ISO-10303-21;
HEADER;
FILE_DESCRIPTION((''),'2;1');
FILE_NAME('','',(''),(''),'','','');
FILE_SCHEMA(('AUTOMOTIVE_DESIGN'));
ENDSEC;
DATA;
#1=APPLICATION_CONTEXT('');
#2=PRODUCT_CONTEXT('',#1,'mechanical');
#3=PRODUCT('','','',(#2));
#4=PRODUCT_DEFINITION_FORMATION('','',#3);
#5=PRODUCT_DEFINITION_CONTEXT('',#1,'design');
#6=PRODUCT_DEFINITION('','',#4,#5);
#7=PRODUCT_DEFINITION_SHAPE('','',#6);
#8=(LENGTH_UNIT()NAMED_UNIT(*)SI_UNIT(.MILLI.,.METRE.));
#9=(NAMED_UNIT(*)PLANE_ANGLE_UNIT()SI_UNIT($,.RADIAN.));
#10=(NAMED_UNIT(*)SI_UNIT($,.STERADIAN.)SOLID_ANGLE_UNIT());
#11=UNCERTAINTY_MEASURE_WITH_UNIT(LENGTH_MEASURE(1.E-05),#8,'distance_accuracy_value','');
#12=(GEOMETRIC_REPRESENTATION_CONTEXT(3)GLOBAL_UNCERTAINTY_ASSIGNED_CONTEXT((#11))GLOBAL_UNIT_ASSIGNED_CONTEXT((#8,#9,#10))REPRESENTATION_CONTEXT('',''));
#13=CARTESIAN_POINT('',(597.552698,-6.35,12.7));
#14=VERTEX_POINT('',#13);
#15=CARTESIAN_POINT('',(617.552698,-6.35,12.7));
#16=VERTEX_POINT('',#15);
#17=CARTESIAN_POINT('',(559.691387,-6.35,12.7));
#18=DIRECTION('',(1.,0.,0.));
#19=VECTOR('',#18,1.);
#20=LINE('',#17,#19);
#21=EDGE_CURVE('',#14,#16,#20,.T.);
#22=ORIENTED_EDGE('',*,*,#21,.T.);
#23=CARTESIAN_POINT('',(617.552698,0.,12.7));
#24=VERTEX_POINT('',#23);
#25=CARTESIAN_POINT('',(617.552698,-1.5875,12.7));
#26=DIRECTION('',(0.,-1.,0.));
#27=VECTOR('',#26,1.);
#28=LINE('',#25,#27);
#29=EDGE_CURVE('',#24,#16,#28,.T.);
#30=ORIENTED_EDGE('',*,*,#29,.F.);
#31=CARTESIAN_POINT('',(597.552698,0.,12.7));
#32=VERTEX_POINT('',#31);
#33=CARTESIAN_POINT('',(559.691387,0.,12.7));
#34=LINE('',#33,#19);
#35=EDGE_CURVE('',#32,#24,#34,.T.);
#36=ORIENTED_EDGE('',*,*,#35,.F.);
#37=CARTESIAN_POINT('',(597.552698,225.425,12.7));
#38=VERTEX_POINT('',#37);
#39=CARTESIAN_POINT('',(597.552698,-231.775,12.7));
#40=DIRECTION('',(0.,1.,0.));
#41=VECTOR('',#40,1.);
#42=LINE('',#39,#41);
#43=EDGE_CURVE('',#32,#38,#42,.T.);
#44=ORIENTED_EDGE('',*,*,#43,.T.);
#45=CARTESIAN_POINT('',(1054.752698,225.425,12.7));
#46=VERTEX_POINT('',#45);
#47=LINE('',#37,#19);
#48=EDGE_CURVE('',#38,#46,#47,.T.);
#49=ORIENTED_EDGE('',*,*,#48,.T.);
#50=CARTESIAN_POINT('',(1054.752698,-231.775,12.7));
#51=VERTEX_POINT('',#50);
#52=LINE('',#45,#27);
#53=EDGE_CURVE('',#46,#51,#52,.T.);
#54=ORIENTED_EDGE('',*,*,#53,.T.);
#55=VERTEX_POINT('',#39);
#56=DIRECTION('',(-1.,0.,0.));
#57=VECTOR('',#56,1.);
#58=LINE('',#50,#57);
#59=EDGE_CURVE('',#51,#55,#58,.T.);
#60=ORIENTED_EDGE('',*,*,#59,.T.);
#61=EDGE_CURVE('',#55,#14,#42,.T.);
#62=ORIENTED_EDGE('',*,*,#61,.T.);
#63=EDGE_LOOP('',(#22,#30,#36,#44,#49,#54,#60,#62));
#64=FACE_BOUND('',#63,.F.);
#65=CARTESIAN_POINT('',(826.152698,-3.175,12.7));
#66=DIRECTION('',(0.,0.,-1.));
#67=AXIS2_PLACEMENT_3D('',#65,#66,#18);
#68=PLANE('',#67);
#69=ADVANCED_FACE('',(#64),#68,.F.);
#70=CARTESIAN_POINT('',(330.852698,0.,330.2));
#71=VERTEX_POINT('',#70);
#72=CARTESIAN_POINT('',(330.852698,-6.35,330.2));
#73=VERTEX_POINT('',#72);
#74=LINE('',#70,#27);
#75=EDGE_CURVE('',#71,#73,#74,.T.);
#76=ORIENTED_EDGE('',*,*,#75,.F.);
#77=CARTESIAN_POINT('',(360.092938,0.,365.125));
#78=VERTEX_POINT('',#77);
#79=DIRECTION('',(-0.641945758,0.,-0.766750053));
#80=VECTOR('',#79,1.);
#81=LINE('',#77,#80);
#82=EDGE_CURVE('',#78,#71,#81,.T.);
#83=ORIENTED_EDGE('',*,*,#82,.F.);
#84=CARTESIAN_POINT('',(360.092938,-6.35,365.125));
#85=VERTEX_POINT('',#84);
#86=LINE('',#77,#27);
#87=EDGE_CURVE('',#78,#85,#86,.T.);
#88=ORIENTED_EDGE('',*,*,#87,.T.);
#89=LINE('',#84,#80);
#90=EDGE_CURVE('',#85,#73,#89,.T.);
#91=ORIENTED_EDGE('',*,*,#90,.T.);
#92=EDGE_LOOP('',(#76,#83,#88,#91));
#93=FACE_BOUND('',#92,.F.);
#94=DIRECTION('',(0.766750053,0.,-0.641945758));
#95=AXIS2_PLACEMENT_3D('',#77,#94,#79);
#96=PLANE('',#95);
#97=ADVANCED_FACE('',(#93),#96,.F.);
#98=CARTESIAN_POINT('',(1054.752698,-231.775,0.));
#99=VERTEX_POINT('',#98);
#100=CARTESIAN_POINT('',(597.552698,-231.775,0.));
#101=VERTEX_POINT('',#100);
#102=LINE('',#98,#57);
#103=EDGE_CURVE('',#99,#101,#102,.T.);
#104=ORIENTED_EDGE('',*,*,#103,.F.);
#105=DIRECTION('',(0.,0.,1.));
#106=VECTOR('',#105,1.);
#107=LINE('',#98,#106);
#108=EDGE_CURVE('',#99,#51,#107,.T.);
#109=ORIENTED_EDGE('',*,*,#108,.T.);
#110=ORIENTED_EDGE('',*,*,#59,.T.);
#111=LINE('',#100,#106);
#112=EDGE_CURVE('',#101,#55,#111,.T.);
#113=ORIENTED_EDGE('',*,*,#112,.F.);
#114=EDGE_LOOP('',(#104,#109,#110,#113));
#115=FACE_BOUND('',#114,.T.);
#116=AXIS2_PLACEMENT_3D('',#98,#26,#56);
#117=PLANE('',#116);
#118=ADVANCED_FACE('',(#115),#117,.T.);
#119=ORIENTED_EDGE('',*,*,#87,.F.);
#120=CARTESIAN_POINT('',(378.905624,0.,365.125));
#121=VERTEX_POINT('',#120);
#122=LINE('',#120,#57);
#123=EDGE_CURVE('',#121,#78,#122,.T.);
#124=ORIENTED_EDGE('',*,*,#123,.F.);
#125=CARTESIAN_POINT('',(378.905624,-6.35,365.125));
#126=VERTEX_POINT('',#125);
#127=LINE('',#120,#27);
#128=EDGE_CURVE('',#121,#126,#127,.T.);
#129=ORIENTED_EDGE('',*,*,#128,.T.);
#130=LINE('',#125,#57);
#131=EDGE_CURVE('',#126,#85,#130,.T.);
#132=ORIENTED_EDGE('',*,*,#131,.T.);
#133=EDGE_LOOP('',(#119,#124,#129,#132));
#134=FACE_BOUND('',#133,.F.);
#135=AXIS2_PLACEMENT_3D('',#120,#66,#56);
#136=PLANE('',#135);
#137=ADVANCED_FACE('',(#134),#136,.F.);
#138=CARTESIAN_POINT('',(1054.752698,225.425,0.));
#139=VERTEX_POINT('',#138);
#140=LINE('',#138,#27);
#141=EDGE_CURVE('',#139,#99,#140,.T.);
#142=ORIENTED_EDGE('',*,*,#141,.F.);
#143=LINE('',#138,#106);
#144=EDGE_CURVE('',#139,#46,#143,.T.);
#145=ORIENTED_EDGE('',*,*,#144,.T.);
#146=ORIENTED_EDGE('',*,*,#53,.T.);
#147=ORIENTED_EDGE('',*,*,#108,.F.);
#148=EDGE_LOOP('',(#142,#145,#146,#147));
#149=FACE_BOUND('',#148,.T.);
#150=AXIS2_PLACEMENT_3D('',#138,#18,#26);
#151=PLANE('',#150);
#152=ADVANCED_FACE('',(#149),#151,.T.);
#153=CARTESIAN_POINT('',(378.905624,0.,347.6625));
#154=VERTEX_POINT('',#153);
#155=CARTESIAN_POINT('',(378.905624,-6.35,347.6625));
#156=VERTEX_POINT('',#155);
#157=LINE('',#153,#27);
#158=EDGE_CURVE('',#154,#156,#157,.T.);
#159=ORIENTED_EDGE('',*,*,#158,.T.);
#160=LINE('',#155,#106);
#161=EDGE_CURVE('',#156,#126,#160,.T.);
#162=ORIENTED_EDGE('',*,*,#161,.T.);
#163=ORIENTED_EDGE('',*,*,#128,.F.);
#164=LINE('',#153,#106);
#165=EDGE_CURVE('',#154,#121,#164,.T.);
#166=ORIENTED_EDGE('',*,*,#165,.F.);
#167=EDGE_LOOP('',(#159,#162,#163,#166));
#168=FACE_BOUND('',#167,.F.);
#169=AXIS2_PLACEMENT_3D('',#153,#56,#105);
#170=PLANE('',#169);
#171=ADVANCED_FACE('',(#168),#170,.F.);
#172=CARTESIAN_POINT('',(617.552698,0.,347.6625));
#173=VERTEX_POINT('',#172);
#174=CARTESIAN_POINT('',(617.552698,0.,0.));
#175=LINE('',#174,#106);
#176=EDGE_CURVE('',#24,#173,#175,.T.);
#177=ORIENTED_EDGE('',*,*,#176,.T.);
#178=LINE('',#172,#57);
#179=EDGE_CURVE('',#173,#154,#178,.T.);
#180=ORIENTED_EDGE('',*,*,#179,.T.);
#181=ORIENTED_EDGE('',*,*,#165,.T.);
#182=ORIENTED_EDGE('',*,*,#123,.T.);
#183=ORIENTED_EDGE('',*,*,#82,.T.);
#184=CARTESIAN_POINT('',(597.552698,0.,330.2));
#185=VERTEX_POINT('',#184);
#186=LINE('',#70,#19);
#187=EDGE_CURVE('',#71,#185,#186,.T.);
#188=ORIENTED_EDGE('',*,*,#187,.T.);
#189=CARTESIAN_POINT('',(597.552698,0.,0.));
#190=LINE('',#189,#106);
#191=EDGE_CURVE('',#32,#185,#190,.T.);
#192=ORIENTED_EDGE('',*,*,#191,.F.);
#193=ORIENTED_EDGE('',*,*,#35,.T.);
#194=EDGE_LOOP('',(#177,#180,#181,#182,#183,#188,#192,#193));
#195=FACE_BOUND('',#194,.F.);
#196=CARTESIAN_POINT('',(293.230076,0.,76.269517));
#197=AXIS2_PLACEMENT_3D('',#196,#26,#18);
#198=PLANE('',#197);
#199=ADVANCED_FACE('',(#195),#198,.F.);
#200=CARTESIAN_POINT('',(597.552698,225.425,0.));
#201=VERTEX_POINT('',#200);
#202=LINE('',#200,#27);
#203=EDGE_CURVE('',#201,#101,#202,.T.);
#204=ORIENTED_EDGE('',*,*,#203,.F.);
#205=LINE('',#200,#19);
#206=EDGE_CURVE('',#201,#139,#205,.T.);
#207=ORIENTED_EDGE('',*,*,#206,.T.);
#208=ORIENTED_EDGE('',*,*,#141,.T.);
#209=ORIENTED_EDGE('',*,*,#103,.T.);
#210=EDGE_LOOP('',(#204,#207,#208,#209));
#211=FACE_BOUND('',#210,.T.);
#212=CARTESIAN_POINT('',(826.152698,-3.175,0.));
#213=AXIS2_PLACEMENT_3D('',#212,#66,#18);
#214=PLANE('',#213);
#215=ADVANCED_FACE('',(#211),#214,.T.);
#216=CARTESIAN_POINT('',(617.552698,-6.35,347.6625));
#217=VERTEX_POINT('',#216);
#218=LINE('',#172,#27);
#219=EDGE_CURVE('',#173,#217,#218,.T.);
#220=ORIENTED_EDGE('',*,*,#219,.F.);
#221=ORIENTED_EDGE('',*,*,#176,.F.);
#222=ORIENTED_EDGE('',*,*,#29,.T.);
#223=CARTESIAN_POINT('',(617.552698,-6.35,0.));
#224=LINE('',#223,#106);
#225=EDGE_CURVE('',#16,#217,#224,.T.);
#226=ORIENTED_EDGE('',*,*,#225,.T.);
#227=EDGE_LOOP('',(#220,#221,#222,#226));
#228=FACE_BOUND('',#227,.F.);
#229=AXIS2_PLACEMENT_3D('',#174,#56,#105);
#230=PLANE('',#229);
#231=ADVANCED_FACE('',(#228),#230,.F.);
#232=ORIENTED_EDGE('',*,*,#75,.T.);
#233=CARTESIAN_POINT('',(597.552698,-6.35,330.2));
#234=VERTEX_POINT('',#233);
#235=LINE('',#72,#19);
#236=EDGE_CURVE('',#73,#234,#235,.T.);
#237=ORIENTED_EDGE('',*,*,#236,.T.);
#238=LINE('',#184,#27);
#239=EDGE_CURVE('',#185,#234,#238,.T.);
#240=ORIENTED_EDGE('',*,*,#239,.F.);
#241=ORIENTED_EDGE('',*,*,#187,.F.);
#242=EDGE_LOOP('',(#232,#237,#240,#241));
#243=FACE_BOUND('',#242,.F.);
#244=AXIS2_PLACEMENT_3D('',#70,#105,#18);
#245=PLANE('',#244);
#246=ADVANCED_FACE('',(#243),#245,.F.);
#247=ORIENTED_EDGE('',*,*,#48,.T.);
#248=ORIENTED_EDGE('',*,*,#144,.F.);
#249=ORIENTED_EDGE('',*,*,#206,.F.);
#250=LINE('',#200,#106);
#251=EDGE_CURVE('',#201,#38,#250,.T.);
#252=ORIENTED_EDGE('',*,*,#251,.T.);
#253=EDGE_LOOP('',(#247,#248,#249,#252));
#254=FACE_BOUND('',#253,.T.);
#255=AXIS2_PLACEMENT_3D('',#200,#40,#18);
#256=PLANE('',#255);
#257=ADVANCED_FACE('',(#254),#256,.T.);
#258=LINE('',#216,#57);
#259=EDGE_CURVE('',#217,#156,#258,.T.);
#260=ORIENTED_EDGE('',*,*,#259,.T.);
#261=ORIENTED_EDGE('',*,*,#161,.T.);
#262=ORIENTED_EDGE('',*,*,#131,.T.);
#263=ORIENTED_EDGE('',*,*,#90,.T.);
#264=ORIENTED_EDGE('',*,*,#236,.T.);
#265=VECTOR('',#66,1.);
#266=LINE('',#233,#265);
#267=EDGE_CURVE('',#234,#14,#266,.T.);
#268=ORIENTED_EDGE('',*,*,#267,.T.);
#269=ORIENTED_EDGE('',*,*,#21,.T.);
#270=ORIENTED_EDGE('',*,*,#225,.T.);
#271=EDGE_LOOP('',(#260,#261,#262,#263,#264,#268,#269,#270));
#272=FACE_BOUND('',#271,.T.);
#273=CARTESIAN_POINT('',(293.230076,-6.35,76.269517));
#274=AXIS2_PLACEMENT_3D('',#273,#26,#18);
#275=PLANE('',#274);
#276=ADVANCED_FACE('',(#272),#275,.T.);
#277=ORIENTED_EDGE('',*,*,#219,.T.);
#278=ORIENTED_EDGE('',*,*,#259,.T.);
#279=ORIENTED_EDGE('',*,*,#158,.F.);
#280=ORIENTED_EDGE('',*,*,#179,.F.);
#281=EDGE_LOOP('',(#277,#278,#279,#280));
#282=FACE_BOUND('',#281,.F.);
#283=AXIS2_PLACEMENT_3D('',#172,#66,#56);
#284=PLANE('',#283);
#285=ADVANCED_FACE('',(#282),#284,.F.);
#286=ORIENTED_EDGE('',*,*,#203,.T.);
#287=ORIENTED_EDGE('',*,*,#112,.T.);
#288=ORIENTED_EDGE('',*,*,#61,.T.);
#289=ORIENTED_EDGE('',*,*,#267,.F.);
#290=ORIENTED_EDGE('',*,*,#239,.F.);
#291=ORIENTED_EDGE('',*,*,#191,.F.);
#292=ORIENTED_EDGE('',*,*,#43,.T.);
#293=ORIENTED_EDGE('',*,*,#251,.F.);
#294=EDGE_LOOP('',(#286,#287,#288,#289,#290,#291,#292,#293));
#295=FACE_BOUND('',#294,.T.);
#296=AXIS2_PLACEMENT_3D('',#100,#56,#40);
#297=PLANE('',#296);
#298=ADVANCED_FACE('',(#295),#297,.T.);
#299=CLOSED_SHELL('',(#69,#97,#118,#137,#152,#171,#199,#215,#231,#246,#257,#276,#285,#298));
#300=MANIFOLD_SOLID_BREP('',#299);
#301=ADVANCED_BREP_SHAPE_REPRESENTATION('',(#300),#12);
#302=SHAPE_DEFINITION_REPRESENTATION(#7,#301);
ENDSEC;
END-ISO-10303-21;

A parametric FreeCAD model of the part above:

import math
import FreeCAD as App
import Part
import Sketcher
from FreeCAD import Vector
Q = App.Units.Quantity

doc = App.newDocument("Part")
body = doc.addObject("PartDesign::Body", "Body")

sketch1 = body.newObject("Sketcher::SketchObject", "Sketch")
sketch1.AttachmentSupport = (doc.getObject("XZ_Plane"), [""])
sketch1.MapMode = "FlatFace"
sketch1.addGeometry(Part.LineSegment(Vector(-31, 79, 0), Vector(-31, 0, 0)), False)
sketch1.addGeometry(Part.LineSegment(Vector(-31, 0, 0), Vector(618, 0, 0)), False)
sketch1.addGeometry(Part.LineSegment(Vector(618, 0, 0), Vector(618, 348, 0)), False)
sketch1.addGeometry(Part.LineSegment(Vector(618, 348, 0), Vector(379, 348, 0)), False)
sketch1.addGeometry(Part.LineSegment(Vector(379, 348, 0), Vector(379, 365, 0)), False)
sketch1.addGeometry(Part.LineSegment(Vector(379, 365, 0), Vector(360, 365, 0)), False)
sketch1.addGeometry(Part.LineSegment(Vector(360, 365, 0), Vector(331, 330, 0)), False)
sketch1.addGeometry(Part.LineSegment(Vector(331, 330, 0), Vector(598, 330, 0)), False)
sketch1.addGeometry(Part.LineSegment(Vector(598, 330, 0), Vector(598, 159, 0)), False)
sketch1.addGeometry(Part.LineSegment(Vector(598, 159, 0), Vector(77, 159, 0)), False)
sketch1.addGeometry(Part.ArcOfCircle(Part.Circle(Vector(82, 39, 0), Vector(0, 0, 1), 120), math.radians(92), math.radians(160)), False)
sketch1.addConstraint(Sketcher.Constraint("Coincident", 0, 2, 1, 1))
sketch1.addConstraint(Sketcher.Constraint("Coincident", 1, 2, 2, 1))
sketch1.addConstraint(Sketcher.Constraint("Coincident", 2, 2, 3, 1))
sketch1.addConstraint(Sketcher.Constraint("Coincident", 3, 2, 4, 1))
sketch1.addConstraint(Sketcher.Constraint("Coincident", 4, 2, 5, 1))
sketch1.addConstraint(Sketcher.Constraint("Coincident", 5, 2, 6, 1))
sketch1.addConstraint(Sketcher.Constraint("Coincident", 6, 2, 7, 1))
sketch1.addConstraint(Sketcher.Constraint("Coincident", 7, 2, 8, 1))
sketch1.addConstraint(Sketcher.Constraint("Coincident", 8, 2, 9, 1))
sketch1.addConstraint(Sketcher.Constraint("Coincident", 9, 2, 10, 1))
sketch1.addConstraint(Sketcher.Constraint("Coincident", 10, 2, 0, 1))
sketch1.addConstraint(Sketcher.Constraint("Vertical", 0))
sketch1.addConstraint(Sketcher.Constraint("Horizontal", 1))
sketch1.addConstraint(Sketcher.Constraint("Vertical", 2))
sketch1.addConstraint(Sketcher.Constraint("Horizontal", 3))
sketch1.addConstraint(Sketcher.Constraint("Vertical", 4))
sketch1.addConstraint(Sketcher.Constraint("Horizontal", 5))
sketch1.addConstraint(Sketcher.Constraint("Horizontal", 7))
sketch1.addConstraint(Sketcher.Constraint("Vertical", 8))
sketch1.addConstraint(Sketcher.Constraint("Horizontal", 9))
sketch1.addConstraint(Sketcher.Constraint("PointOnObject", 0, 2, -1))
sketch1.addConstraint(Sketcher.Constraint("DistanceX", 7, 1, 7, 2, Q("10.5 in")))
sketch1.addConstraint(Sketcher.Constraint("DistanceY", -1, 1, 6, 2, Q("13 in")))
sketch1.addConstraint(Sketcher.Constraint("DistanceY", 8, 2, 8, 1, Q("6.75 in")))
sketch1.addConstraint(Sketcher.Constraint("DistanceY", 0, 2, 0, 1, Q("3.125 in")))
sketch1.addConstraint(Sketcher.Constraint("DistanceY", 2, 1, 2, 2, Q("13.6875 in")))
sketch1.addConstraint(Sketcher.Constraint("DistanceY", 4, 1, 4, 2, Q("0.6875 in")))
sketch1.addConstraint(Sketcher.Constraint("DistanceX", 10, 2, 6, 2, Q("14.25 in")))
sketch1.addConstraint(Sketcher.Constraint("DistanceX", 1, 1, 1, 2, 648.65))
sketch1.addConstraint(Sketcher.Constraint("Radius", 10, 120.328757))
sketch1.addConstraint(Sketcher.Constraint("DistanceX", 9, 2, 9, 1, 520.599972))
sketch1.addConstraint(Sketcher.Constraint("DistanceX", 0, 2, -1, 1, 31.097302))
sketch1.addConstraint(Sketcher.Constraint("DistanceX", 9, 2, 3, 2, 301.952898))
sketch1.addConstraint(Sketcher.Constraint("DistanceX", 5, 2, 5, 1, 18.812686))
pad1 = body.newObject("PartDesign::Pad", "Pad")
pad1.Profile = sketch1
pad1.Length = Q("0.25 in")

sketch2 = body.newObject("Sketcher::SketchObject", "Sketch001")
sketch2.AttachmentSupport = (doc.getObject("XZ_Plane"), [""])
sketch2.MapMode = "FlatFace"
sketch2.addGeometry(Part.LineSegment(Vector(-31, 79, 0), Vector(-31, 0, 0)), False)
sketch2.addGeometry(Part.LineSegment(Vector(-31, 0, 0), Vector(598, 0, 0)), False)
sketch2.addGeometry(Part.LineSegment(Vector(598, 0, 0), Vector(598, 159, 0)), False)
sketch2.addGeometry(Part.LineSegment(Vector(598, 159, 0), Vector(77, 159, 0)), False)
sketch2.addGeometry(Part.ArcOfCircle(Part.Circle(Vector(82, 39, 0), Vector(0, 0, 1), 120), math.radians(92), math.radians(160)), False)
sketch2.addConstraint(Sketcher.Constraint("Coincident", 0, 2, 1, 1))
sketch2.addConstraint(Sketcher.Constraint("Coincident", 1, 2, 2, 1))
sketch2.addConstraint(Sketcher.Constraint("Coincident", 2, 2, 3, 1))
sketch2.addConstraint(Sketcher.Constraint("Coincident", 3, 2, 4, 1))
sketch2.addConstraint(Sketcher.Constraint("Coincident", 4, 2, 0, 1))
sketch2.addConstraint(Sketcher.Constraint("Vertical", 0))
sketch2.addConstraint(Sketcher.Constraint("Horizontal", 1))
sketch2.addConstraint(Sketcher.Constraint("Vertical", 2))
sketch2.addConstraint(Sketcher.Constraint("Horizontal", 3))
sketch2.addConstraint(Sketcher.Constraint("PointOnObject", 0, 2, -1))
sketch2.addConstraint(Sketcher.Constraint("DistanceX", 1, 1, 1, 2, Q("24.75 in")))
sketch2.addConstraint(Sketcher.Constraint("DistanceY", 2, 1, 2, 2, Q("6.25 in")))
sketch2.addConstraint(Sketcher.Constraint("DistanceY", 0, 2, 0, 1, Q("3.125 in")))
sketch2.addConstraint(Sketcher.Constraint("Radius", 4, 120.328757))
sketch2.addConstraint(Sketcher.Constraint("DistanceX", 3, 2, 3, 1, 520.599972))
sketch2.addConstraint(Sketcher.Constraint("DistanceX", 0, 2, -1, 1, 31.097302))
pocket1 = body.newObject("PartDesign::Pocket", "Pocket")
pocket1.Profile = sketch2
pocket1.Length = 25
pocket1.Reversed = True

sketch3 = body.newObject("Sketcher::SketchObject", "Sketch002")
sketch3.AttachmentSupport = (doc.getObject("XY_Plane"), [""])
sketch3.MapMode = "FlatFace"
sketch3.addGeometry(Part.LineSegment(Vector(598, 225, 0), Vector(1055, 225, 0)), False)
sketch3.addGeometry(Part.LineSegment(Vector(1055, 225, 0), Vector(1055, -232, 0)), False)
sketch3.addGeometry(Part.LineSegment(Vector(1055, -232, 0), Vector(598, -232, 0)), False)
sketch3.addGeometry(Part.LineSegment(Vector(598, -232, 0), Vector(598, 225, 0)), False)
sketch3.addConstraint(Sketcher.Constraint("Coincident", 0, 2, 1, 1))
sketch3.addConstraint(Sketcher.Constraint("Coincident", 1, 2, 2, 1))
sketch3.addConstraint(Sketcher.Constraint("Coincident", 2, 2, 3, 1))
sketch3.addConstraint(Sketcher.Constraint("Coincident", 3, 2, 0, 1))
sketch3.addConstraint(Sketcher.Constraint("Horizontal", 0))
sketch3.addConstraint(Sketcher.Constraint("Vertical", 1))
sketch3.addConstraint(Sketcher.Constraint("Horizontal", 2))
sketch3.addConstraint(Sketcher.Constraint("Vertical", 3))
sketch3.addConstraint(Sketcher.Constraint("Equal", 2, 1))
sketch3.addConstraint(Sketcher.Constraint("DistanceX", 0, 1, 0, 2, Q("18 in")))
sketch3.addConstraint(Sketcher.Constraint("DistanceY", -1, 1, 0, 2, Q("8.875 in")))
sketch3.addConstraint(Sketcher.Constraint("DistanceX", -1, 1, 0, 2, 1054.752698))
pad2 = body.newObject("PartDesign::Pad", "Pad001")
pad2.Profile = sketch3
pad2.Length = Q("0.5 in")

doc.recompute()
